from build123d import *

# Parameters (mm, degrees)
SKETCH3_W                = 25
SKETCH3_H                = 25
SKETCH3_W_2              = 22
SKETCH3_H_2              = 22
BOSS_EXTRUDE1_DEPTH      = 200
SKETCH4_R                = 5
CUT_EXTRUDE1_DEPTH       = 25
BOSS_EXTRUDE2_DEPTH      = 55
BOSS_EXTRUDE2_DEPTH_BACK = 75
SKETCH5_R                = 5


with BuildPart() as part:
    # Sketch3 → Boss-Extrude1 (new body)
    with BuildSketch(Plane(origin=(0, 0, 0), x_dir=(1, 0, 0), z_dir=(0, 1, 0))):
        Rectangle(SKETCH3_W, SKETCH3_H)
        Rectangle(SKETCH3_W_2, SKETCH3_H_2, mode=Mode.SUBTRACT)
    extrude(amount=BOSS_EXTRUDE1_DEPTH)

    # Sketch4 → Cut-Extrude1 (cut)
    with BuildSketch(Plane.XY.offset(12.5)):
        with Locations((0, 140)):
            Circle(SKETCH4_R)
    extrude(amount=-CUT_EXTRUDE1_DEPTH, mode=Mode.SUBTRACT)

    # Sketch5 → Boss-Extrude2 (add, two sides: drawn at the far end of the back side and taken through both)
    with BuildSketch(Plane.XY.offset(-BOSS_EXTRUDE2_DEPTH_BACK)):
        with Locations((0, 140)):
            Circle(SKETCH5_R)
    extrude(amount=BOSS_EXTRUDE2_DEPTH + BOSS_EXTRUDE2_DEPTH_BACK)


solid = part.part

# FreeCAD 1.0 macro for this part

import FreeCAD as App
import Part
import Sketcher

V = App.Vector


def add_polygon(sketch, points):
    """Adds a closed chain of lines whose ends are joined by coincident constraints."""
    first, n = sketch.GeometryCount, len(points)
    for a, b in zip(points, points[1:] + points[:1]):
        sketch.addGeometry(Part.LineSegment(App.Vector(*a, 0), App.Vector(*b, 0)), False)
    for i in range(n):
        sketch.addConstraint(Sketcher.Constraint("Coincident", first + i, 2, first + (i + 1) % n, 1))

doc = App.newDocument("Part")
body = doc.addObject("PartDesign::Body", "Body")

# Sketch on XZ plane
sketch1 = body.newObject("Sketcher::SketchObject", "Sketch")
sketch1.AttachmentSupport = (doc.getObject("XZ_Plane"), [""])
sketch1.MapMode = "FlatFace"
add_polygon(sketch1, [(-12, -12), (-12, 12), (12, 12), (12, -12)])  # lines 0-3
add_polygon(sketch1, [(11, 11), (-11, 11), (-11, -11), (11, -11)])  # lines 4-7
sketch1.addConstraint(Sketcher.Constraint("Vertical", 0))
sketch1.addConstraint(Sketcher.Constraint("Horizontal", 1))
sketch1.addConstraint(Sketcher.Constraint("Vertical", 2))
sketch1.addConstraint(Sketcher.Constraint("Horizontal", 3))
sketch1.addConstraint(Sketcher.Constraint("Horizontal", 4))
sketch1.addConstraint(Sketcher.Constraint("Vertical", 5))
sketch1.addConstraint(Sketcher.Constraint("Horizontal", 6))
sketch1.addConstraint(Sketcher.Constraint("Vertical", 7))
sketch1.addConstraint(Sketcher.Constraint("Symmetric", 0, 2, 2, 2, -1, 1))
sketch1.addConstraint(Sketcher.Constraint("Symmetric", 4, 2, 6, 2, -1, 1))
sketch1.addConstraint(Sketcher.Constraint("Equal", 3, 0))
sketch1.addConstraint(Sketcher.Constraint("Equal", 6, 5))
sketch1.addConstraint(Sketcher.Constraint("DistanceX", 1, 1, 1, 2, 25.0))
sketch1.addConstraint(Sketcher.Constraint("DistanceX", 4, 2, 4, 1, 22.0))
pad1 = body.newObject("PartDesign::Pad", "Pad")
pad1.Profile = sketch1
pad1.Length = 200
pad1.Reversed = True

# Sketch on XY plane
sketch2 = body.newObject("Sketcher::SketchObject", "Sketch001")
sketch2.AttachmentSupport = (doc.getObject("XY_Plane"), [""])
sketch2.MapMode = "FlatFace"
sketch2.AttachmentOffset = App.Placement(V(0, 0, 12.5), App.Rotation())
sketch2.addGeometry(Part.Circle(V(0, 140, 0), V(0, 0, 1), 5), False)
sketch2.addConstraint(Sketcher.Constraint("PointOnObject", 0, 3, -2))
sketch2.addConstraint(Sketcher.Constraint("Diameter", 0, 10.0))
sketch2.addConstraint(Sketcher.Constraint("DistanceY", -1, 1, 0, 3, 140.0))
pocket1 = body.newObject("PartDesign::Pocket", "Pocket")
pocket1.Profile = sketch2
pocket1.Length = 25

# Sketch on XY plane
sketch3 = body.newObject("Sketcher::SketchObject", "Sketch002")
sketch3.AttachmentSupport = (doc.getObject("XY_Plane"), [""])
sketch3.MapMode = "FlatFace"
sketch3.addGeometry(Part.Circle(V(0, 140, 0), V(0, 0, 1), 5), False)
sketch3.addConstraint(Sketcher.Constraint("PointOnObject", 0, 3, -2))
sketch3.addConstraint(Sketcher.Constraint("Diameter", 0, 10.0))
sketch3.addConstraint(Sketcher.Constraint("DistanceY", -1, 1, 0, 3, 140.0))
pad2 = body.newObject("PartDesign::Pad", "Pad001")
pad2.Profile = sketch3
pad2.Type = "TwoLengths"
pad2.Length = 55
pad2.Length2 = 75

doc.recompute()
